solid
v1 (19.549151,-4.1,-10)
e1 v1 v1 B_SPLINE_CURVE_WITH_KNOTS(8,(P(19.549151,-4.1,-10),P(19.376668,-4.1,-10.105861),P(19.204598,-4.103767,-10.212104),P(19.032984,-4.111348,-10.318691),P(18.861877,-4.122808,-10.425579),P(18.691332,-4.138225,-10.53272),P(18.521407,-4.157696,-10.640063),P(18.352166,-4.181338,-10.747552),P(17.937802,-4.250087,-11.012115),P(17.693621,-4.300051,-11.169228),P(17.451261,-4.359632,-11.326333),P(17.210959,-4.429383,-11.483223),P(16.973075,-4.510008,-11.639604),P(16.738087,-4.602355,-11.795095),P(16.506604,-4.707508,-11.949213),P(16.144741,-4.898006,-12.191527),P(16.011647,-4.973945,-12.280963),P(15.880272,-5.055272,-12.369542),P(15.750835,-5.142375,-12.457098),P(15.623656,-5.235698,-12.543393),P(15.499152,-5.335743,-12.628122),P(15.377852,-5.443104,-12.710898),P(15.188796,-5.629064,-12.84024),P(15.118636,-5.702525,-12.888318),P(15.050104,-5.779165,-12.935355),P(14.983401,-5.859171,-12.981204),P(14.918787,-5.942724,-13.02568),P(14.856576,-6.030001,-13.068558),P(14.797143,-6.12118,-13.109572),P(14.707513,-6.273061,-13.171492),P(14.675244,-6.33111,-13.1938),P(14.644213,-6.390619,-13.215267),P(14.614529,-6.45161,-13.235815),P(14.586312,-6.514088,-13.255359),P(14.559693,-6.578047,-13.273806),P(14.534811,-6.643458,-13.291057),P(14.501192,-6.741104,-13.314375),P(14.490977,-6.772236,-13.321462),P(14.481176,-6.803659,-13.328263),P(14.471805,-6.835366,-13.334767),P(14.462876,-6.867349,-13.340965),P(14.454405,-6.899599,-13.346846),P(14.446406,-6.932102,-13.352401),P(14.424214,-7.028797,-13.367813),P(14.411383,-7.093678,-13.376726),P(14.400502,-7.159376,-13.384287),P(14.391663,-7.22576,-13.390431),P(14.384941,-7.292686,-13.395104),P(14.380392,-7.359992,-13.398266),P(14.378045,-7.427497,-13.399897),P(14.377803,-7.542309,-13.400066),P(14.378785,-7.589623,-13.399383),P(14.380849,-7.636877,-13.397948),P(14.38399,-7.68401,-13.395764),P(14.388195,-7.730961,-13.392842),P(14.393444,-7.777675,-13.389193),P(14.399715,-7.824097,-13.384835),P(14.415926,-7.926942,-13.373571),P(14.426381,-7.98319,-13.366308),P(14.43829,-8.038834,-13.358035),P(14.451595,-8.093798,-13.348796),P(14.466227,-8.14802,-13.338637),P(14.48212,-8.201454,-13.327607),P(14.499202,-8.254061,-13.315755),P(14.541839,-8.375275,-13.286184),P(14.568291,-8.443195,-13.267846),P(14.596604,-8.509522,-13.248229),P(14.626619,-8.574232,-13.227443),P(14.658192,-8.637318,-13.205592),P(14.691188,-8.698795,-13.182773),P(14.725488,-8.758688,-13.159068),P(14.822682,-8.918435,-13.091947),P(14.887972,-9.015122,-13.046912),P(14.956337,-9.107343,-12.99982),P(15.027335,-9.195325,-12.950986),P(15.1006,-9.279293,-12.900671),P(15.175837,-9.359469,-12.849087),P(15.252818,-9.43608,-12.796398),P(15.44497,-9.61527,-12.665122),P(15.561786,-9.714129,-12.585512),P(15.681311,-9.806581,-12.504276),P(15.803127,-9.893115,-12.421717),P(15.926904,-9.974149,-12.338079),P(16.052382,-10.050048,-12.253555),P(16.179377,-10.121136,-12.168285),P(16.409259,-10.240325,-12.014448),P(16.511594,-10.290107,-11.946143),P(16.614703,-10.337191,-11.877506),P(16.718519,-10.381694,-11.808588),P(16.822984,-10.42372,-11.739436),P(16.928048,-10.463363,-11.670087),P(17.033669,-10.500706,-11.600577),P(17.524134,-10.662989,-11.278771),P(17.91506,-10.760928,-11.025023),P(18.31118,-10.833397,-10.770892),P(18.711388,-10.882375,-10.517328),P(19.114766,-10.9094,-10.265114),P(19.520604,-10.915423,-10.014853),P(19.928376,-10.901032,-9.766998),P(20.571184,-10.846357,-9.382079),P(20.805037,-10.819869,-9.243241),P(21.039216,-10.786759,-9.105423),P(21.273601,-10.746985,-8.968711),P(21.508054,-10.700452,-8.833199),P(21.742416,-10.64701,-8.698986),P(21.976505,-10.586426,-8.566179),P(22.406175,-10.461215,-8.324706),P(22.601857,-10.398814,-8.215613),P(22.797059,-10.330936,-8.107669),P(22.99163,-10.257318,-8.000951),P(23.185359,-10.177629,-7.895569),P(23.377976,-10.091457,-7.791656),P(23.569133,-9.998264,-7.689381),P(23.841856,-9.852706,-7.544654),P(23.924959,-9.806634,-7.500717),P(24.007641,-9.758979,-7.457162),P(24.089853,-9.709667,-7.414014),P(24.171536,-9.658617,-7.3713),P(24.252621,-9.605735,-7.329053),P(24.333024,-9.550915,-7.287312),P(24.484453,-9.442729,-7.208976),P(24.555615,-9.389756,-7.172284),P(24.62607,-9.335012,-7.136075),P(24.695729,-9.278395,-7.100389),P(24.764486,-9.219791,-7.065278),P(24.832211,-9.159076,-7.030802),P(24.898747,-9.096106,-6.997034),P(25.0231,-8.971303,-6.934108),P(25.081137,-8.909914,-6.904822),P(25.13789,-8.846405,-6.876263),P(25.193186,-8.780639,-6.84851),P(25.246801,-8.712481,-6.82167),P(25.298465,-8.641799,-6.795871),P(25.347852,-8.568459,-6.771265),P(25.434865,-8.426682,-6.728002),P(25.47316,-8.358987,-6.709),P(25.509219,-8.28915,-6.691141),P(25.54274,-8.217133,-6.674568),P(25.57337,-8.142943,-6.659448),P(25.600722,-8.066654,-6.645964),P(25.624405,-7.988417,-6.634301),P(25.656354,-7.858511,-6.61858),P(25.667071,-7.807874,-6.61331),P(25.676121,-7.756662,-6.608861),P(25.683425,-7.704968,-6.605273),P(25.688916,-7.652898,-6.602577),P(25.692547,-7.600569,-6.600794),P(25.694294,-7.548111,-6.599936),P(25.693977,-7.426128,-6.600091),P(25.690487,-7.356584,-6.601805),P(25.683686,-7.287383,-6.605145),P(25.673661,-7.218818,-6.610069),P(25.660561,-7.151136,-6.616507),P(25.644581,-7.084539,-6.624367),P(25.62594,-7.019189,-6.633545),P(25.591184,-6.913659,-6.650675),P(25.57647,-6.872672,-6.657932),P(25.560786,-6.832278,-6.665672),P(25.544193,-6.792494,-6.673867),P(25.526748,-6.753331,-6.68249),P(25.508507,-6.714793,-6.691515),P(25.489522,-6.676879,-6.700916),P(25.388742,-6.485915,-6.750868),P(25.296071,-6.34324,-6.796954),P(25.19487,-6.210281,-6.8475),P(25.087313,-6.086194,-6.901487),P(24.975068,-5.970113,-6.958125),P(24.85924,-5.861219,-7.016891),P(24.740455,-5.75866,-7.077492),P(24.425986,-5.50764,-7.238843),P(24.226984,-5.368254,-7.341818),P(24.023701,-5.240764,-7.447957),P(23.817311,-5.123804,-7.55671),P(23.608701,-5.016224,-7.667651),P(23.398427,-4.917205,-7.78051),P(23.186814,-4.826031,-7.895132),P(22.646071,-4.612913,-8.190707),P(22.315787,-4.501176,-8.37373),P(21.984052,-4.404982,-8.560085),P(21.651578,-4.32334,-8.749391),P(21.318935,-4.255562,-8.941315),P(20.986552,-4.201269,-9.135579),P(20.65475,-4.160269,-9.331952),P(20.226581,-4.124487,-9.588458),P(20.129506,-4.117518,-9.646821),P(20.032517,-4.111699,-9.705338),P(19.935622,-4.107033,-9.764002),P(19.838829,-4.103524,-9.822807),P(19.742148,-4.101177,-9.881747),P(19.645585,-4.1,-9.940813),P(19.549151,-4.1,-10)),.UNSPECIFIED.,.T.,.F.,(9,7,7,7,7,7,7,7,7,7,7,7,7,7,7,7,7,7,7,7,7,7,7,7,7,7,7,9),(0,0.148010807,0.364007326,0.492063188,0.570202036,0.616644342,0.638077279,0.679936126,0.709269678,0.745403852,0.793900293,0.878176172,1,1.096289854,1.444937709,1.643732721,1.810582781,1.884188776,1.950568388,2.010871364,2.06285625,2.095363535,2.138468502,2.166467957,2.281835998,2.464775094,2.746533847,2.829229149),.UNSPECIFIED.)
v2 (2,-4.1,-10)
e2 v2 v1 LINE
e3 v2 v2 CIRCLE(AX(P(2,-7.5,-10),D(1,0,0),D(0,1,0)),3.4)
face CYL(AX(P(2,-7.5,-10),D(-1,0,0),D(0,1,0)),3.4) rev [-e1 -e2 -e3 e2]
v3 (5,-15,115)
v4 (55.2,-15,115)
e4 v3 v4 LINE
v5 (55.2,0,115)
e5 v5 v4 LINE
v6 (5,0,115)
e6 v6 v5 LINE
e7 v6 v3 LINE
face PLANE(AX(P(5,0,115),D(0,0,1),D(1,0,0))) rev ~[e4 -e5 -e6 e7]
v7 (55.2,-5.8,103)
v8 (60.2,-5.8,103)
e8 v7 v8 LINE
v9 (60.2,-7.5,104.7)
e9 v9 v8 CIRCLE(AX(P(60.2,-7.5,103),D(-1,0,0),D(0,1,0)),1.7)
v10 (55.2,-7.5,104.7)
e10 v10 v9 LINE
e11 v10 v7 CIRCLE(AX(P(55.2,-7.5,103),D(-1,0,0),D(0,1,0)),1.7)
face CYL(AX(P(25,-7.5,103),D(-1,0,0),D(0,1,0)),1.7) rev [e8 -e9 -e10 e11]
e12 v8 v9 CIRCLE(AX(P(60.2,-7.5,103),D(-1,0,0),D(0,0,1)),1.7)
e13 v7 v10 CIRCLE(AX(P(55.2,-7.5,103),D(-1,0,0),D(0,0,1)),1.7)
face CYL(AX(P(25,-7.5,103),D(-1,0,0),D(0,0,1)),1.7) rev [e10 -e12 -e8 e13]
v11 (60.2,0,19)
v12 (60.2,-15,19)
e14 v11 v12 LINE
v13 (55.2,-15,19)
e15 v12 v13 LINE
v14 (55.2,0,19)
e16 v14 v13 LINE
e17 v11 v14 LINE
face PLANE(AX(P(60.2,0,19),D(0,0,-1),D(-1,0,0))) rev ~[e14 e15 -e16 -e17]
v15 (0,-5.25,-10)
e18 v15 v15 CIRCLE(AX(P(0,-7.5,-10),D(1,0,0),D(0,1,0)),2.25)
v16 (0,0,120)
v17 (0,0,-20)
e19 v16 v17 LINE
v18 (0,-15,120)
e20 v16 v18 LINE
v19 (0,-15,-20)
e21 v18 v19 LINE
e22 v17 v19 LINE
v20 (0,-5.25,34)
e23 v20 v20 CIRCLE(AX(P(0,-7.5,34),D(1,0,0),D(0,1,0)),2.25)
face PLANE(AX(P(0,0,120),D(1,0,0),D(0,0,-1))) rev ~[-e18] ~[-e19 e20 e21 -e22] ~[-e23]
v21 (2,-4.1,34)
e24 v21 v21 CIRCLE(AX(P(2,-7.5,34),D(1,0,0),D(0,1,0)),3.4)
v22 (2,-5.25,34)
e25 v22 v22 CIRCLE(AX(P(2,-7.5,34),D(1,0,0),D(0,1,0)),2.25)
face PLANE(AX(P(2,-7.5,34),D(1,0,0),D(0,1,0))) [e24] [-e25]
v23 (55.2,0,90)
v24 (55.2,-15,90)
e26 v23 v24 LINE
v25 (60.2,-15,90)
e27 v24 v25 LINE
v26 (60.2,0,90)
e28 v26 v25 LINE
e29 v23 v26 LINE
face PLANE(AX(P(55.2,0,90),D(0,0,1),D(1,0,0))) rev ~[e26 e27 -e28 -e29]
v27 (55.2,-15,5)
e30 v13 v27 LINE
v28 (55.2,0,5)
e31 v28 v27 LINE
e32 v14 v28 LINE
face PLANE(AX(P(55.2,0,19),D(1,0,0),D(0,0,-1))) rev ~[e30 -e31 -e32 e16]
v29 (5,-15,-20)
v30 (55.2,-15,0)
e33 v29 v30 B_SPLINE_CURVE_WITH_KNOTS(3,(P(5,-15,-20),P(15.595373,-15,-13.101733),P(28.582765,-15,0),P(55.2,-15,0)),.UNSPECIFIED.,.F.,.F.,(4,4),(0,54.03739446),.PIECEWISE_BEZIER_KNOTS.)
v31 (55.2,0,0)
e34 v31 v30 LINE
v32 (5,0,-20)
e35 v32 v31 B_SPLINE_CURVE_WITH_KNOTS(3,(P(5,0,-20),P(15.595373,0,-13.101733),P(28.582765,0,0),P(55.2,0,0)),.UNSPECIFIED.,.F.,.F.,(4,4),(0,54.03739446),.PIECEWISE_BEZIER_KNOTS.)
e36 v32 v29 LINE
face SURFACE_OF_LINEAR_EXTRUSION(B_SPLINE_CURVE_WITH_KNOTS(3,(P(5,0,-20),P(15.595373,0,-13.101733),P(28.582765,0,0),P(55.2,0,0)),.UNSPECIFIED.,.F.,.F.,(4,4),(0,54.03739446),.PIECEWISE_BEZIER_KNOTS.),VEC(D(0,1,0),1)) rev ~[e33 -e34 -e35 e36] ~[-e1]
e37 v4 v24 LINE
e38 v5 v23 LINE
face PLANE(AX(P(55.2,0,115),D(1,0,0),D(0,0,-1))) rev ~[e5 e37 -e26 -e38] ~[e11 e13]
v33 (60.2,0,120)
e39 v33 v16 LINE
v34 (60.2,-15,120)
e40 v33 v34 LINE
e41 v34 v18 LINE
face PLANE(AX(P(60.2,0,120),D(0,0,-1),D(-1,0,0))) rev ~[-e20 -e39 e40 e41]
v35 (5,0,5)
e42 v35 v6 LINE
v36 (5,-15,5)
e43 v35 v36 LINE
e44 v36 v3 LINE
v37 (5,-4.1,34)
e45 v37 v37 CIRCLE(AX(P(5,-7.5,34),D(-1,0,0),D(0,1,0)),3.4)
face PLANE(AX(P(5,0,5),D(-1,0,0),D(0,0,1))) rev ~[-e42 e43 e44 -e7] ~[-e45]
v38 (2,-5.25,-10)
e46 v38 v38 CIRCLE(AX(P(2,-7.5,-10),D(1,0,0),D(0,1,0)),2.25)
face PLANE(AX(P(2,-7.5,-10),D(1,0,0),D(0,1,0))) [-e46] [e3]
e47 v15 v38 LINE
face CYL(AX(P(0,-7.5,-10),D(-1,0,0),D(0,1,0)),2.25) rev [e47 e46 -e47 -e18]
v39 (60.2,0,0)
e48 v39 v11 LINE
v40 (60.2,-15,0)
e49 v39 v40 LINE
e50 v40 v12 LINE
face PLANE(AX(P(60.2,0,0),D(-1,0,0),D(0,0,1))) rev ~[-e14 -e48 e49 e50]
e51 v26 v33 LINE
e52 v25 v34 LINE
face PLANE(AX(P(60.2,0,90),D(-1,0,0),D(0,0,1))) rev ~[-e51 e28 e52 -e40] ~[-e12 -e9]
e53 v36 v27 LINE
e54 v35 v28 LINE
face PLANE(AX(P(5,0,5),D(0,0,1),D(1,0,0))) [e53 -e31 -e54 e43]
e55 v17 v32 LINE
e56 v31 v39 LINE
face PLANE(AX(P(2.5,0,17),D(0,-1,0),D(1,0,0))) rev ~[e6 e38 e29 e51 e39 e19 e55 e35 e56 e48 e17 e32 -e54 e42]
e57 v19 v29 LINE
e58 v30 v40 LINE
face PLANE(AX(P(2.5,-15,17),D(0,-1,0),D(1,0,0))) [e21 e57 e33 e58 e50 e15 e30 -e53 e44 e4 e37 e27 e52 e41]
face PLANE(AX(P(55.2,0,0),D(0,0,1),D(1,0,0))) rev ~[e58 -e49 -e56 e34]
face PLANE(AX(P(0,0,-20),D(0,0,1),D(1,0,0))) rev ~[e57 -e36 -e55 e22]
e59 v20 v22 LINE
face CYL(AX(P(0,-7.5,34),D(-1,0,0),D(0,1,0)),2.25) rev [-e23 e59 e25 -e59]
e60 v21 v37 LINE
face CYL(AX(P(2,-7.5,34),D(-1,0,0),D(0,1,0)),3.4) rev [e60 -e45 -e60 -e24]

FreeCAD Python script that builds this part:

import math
import FreeCAD as App
import Part
import Sketcher

doc = App.newDocument("Part")
body = doc.addObject("PartDesign::Body", "Body")

# Sketch on XZ plane
sketch1 = body.newObject("Sketcher::SketchObject", "Sketch")
sketch1.AttachmentSupport = (doc.getObject("XZ_Plane"), [""])
sketch1.MapMode = "FlatFace"
sketch1.addGeometry([
    Part.BSplineCurve([App.Vector(5, -20, 0), App.Vector(15.595373, -13.101733, 0), App.Vector(28.582765, 0, 0), App.Vector(55.2, 0, 0)], [4, 4], [0, 54.03739446], False, 3, [1, 1, 1, 1], False),  # 0
    Part.LineSegment(App.Vector(55.2, 0, 0), App.Vector(60.2, 0, 0)),  # 1
    Part.LineSegment(App.Vector(60.2, 0, 0), App.Vector(60.2, 19, 0)),  # 2
    Part.LineSegment(App.Vector(60.2, 19, 0), App.Vector(55.2, 19, 0)),  # 3
    Part.LineSegment(App.Vector(55.2, 19, 0), App.Vector(55.2, 5, 0)),  # 4
    Part.LineSegment(App.Vector(55.2, 5, 0), App.Vector(5, 5, 0)),  # 5
    Part.LineSegment(App.Vector(5, 5, 0), App.Vector(5, 115, 0)),  # 6
    Part.LineSegment(App.Vector(5, 115, 0), App.Vector(55.2, 115, 0)),  # 7
    Part.LineSegment(App.Vector(55.2, 115, 0), App.Vector(55.2, 90, 0)),  # 8
    Part.LineSegment(App.Vector(55.2, 90, 0), App.Vector(60.2, 90, 0)),  # 9
    Part.LineSegment(App.Vector(60.2, 90, 0), App.Vector(60.2, 120, 0)),  # 10
    Part.LineSegment(App.Vector(60.2, 120, 0), App.Vector(0, 120, 0)),  # 11
    Part.LineSegment(App.Vector(0, 120, 0), App.Vector(0, -20, 0)),  # 12
    Part.LineSegment(App.Vector(0, -20, 0), App.Vector(5, -20, 0)),  # 13
], False)
sketch1.addConstraint([
    Sketcher.Constraint("Block", 0),
    Sketcher.Constraint("Coincident", 0, 2, 1, 1),
    Sketcher.Constraint("Coincident", 1, 2, 2, 1),
    Sketcher.Constraint("Coincident", 2, 2, 3, 1),
    Sketcher.Constraint("Coincident", 3, 2, 4, 1),
    Sketcher.Constraint("Coincident", 4, 2, 5, 1),
    Sketcher.Constraint("Coincident", 5, 2, 6, 1),
    Sketcher.Constraint("Coincident", 6, 2, 7, 1),
    Sketcher.Constraint("Coincident", 7, 2, 8, 1),
    Sketcher.Constraint("Coincident", 8, 2, 9, 1),
    Sketcher.Constraint("Coincident", 9, 2, 10, 1),
    Sketcher.Constraint("Coincident", 10, 2, 11, 1),
    Sketcher.Constraint("Coincident", 11, 2, 12, 1),
    Sketcher.Constraint("Coincident", 12, 2, 13, 1),
    Sketcher.Constraint("Coincident", 13, 2, 0, 1),
    Sketcher.Constraint("Horizontal", 1),
    Sketcher.Constraint("Vertical", 2),
    Sketcher.Constraint("Horizontal", 3),
    Sketcher.Constraint("Vertical", 4),
    Sketcher.Constraint("Horizontal", 5),
    Sketcher.Constraint("Vertical", 6),
    Sketcher.Constraint("Horizontal", 7),
    Sketcher.Constraint("Vertical", 8),
    Sketcher.Constraint("Horizontal", 9),
    Sketcher.Constraint("Vertical", 10),
    Sketcher.Constraint("Horizontal", 11),
    Sketcher.Constraint("Vertical", 12),
    Sketcher.Constraint("Horizontal", 13),
    Sketcher.Constraint("PointOnObject", 11, 2, -2),
    Sketcher.Constraint("DistanceX", 1, 1, 1, 2, 5.0),
    Sketcher.Constraint("DistanceX", 3, 2, 3, 1, 5.0),
    Sketcher.Constraint("DistanceX", 9, 1, 9, 2, 5.0),
    Sketcher.Constraint("DistanceY", 2, 1, 2, 2, 19.0),
    Sketcher.Constraint("DistanceY", 4, 2, 4, 1, 14.0),
    Sketcher.Constraint("DistanceY", 6, 1, 6, 2, 110.0),
    Sketcher.Constraint("DistanceY", 8, 2, 8, 1, 25.0),
    Sketcher.Constraint("DistanceY", 10, 1, 10, 2, 30.0),
    Sketcher.Constraint("DistanceX", 5, 2, 5, 1, 50.2),
    Sketcher.Constraint("DistanceX", 7, 1, 7, 2, 50.2),
])
pad1 = body.newObject("PartDesign::Pad", "Pad")
pad1.Profile = sketch1
pad1.Length = 15

# Sketch on YZ plane
sketch2 = body.newObject("Sketcher::SketchObject", "Sketch001")
sketch2.AttachmentSupport = (doc.getObject("YZ_Plane"), [""])
sketch2.MapMode = "FlatFace"
sketch2.AttachmentOffset = App.Placement(App.Vector(0, 0, 25), App.Rotation())
sketch2.addGeometry([
    Part.ArcOfCircle(Part.Circle(App.Vector(-7.5, 103, 0), App.Vector(0, 0, 1), 1.7), math.radians(0), math.radians(90)),
    Part.ArcOfCircle(Part.Circle(App.Vector(-7.5, 103, 0), App.Vector(0, 0, 1), 1.7), math.radians(90), math.radians(360)),
], False)
sketch2.addConstraint([
    Sketcher.Constraint("Tangent", 0, 1, 1, 2),
    Sketcher.Constraint("Coincident", 1, 1, 0, 2),
    Sketcher.Constraint("Horizontal", 1, 3, 0, 1),
    Sketcher.Constraint("Vertical", 0, 3, 1, 1),
    Sketcher.Constraint("Radius", 0, 1.7),
    Sketcher.Constraint("DistanceY", -1, 1, 0, 3, 103.0),
    Sketcher.Constraint("DistanceX", 0, 3, -1, 1, 7.5),
])
pocket1 = body.newObject("PartDesign::Pocket", "Pocket")
pocket1.Profile = sketch2
pocket1.Length = 49
pocket1.Reversed = True

# Sketch on YZ plane
sketch3 = body.newObject("Sketcher::SketchObject", "Sketch002")
sketch3.AttachmentSupport = (doc.getObject("YZ_Plane"), [""])
sketch3.MapMode = "FlatFace"
sketch3.addGeometry([
    Part.Circle(App.Vector(-7.5, 34, 0), App.Vector(0, 0, 1), 2.2),
    Part.Circle(App.Vector(-7.5, -10, 0), App.Vector(0, 0, 1), 2.2),
], False)
sketch3.addConstraint([
    Sketcher.Constraint("Equal", 0, 1),
    Sketcher.Constraint("Vertical", 0, 3, 1, 3),
    Sketcher.Constraint("Diameter", 0, 4.5),
    Sketcher.Constraint("DistanceY", -1, 1, 0, 3, 34.0),
    Sketcher.Constraint("DistanceY", 1, 3, -1, 1, 10.0),
    Sketcher.Constraint("DistanceX", 0, 3, -1, 1, 7.5),
])
pocket2 = body.newObject("PartDesign::Pocket", "Pocket001")
pocket2.Profile = sketch3
pocket2.Length = 38.6
pocket2.Reversed = True

# Sketch on YZ plane
sketch4 = body.newObject("Sketcher::SketchObject", "Sketch003")
sketch4.AttachmentSupport = (doc.getObject("YZ_Plane"), [""])
sketch4.MapMode = "FlatFace"
sketch4.AttachmentOffset = App.Placement(App.Vector(0, 0, 2), App.Rotation())
sketch4.addGeometry([
    Part.Circle(App.Vector(-7.5, -10, 0), App.Vector(0, 0, 1), 3.4),
    Part.Circle(App.Vector(-7.5, -10, 0), App.Vector(0, 0, 1), 2.2),
    Part.Circle(App.Vector(-7.5, 34, 0), App.Vector(0, 0, 1), 3.4),
    Part.Circle(App.Vector(-7.5, 34, 0), App.Vector(0, 0, 1), 2.2),
], False)
sketch4.addConstraint([
    Sketcher.Constraint("Coincident", 1, 3, 0, 3),
    Sketcher.Constraint("Coincident", 3, 3, 2, 3),
    Sketcher.Constraint("Equal", 0, 2),
    Sketcher.Constraint("Equal", 1, 3),
    Sketcher.Constraint("Vertical", 1, 3, 2, 3),
    Sketcher.Constraint("Diameter", 0, 6.8),
    Sketcher.Constraint("Diameter", 1, 4.5),
    Sketcher.Constraint("DistanceY", 0, 3, -1, 1, 10.0),
    Sketcher.Constraint("DistanceY", -1, 1, 2, 3, 34.0),
    Sketcher.Constraint("DistanceX", 0, 3, -1, 1, 7.5),
])
pocket3 = body.newObject("PartDesign::Pocket", "Pocket002")
pocket3.Profile = sketch4
pocket3.Length = 47.7
pocket3.Reversed = True

doc.recompute()
